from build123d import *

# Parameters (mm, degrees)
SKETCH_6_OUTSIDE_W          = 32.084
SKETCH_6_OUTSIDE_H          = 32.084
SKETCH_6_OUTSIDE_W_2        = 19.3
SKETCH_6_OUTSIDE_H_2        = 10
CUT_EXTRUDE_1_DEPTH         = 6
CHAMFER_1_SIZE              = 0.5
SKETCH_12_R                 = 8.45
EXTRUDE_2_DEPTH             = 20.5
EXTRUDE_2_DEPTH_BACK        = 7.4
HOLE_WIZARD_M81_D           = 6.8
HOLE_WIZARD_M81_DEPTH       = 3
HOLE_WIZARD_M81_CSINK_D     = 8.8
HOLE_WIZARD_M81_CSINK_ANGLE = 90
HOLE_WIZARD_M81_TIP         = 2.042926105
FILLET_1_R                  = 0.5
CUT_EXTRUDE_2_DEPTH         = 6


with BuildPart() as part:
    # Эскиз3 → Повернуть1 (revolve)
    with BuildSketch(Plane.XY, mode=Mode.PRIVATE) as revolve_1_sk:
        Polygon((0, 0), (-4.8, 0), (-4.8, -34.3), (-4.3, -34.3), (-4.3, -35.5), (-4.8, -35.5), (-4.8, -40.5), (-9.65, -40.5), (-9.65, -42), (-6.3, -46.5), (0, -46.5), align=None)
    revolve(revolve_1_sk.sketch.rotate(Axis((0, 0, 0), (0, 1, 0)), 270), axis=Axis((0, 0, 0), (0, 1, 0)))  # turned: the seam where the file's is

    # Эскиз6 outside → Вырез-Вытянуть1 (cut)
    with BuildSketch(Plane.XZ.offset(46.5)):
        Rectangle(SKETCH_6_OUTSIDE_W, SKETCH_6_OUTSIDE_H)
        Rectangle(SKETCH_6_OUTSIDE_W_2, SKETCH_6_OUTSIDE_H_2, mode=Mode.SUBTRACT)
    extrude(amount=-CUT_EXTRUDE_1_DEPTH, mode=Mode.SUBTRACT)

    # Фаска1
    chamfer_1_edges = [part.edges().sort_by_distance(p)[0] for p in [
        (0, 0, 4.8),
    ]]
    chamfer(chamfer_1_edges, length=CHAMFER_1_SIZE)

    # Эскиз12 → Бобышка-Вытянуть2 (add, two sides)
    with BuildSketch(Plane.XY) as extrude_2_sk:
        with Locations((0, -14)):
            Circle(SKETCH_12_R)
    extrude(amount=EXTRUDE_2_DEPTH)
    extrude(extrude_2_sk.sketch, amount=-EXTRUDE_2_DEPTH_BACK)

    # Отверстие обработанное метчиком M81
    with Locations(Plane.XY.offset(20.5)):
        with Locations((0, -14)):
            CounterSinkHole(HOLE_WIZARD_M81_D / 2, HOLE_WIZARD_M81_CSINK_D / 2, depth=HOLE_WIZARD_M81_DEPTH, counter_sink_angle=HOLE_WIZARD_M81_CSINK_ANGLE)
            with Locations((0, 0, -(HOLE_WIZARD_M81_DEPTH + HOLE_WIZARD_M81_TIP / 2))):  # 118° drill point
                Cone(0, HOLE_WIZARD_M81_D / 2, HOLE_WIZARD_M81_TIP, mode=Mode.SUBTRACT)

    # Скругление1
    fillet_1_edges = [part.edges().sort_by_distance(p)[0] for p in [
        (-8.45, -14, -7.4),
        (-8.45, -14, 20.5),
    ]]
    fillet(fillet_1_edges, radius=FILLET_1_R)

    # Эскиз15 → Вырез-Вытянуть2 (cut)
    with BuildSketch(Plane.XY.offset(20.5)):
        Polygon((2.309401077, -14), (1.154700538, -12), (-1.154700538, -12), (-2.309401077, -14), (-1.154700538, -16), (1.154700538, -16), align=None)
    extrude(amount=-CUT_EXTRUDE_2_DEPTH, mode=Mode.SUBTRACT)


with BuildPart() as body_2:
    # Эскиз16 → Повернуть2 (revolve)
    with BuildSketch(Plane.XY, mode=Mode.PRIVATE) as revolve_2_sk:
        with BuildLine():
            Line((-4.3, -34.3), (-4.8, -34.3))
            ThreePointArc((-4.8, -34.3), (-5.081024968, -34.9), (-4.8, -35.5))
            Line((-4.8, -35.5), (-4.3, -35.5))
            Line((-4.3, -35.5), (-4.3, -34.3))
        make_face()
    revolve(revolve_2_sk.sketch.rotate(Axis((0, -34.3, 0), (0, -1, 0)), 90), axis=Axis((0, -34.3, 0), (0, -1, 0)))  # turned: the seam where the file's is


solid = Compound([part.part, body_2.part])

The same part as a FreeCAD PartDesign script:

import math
import FreeCAD as App
import Part
import Sketcher
Q = App.Units.Quantity


def edges_at(feature, points):
    """Names of the edges that pass closest to the given points."""
    edges = feature.Shape.Edges
    near = lambda p: min(range(len(edges)), key=lambda i: edges[i].distToShape(Part.Vertex(*p))[0])
    return sorted({f"Edge{near(p) + 1}" for p in points})

doc = App.newDocument("Part")
body = doc.addObject("PartDesign::Body", "Body")

sketch1 = body.newObject("Sketcher::SketchObject", "Sketch")
sketch1.AttachmentSupport = (doc.getObject("XY_Plane"), [""])
sketch1.MapMode = "FlatFace"
sketch1.addGeometry(Part.LineSegment(App.Vector(0, 0, 0), App.Vector(-4.8, 0, 0)), False)
sketch1.addGeometry(Part.LineSegment(App.Vector(-4.8, 0, 0), App.Vector(-4.8, -34.3, 0)), False)
sketch1.addGeometry(Part.LineSegment(App.Vector(-4.8, -34.3, 0), App.Vector(-4.3, -34.3, 0)), False)
sketch1.addGeometry(Part.LineSegment(App.Vector(-4.3, -34.3, 0), App.Vector(-4.3, -35.5, 0)), False)
sketch1.addGeometry(Part.LineSegment(App.Vector(-4.3, -35.5, 0), App.Vector(-4.8, -35.5, 0)), False)
sketch1.addGeometry(Part.LineSegment(App.Vector(-4.8, -35.5, 0), App.Vector(-4.8, -40.5, 0)), False)
sketch1.addGeometry(Part.LineSegment(App.Vector(-4.8, -40.5, 0), App.Vector(-9.7, -40.5, 0)), False)
sketch1.addGeometry(Part.LineSegment(App.Vector(-9.7, -40.5, 0), App.Vector(-9.7, -42, 0)), False)
sketch1.addGeometry(Part.LineSegment(App.Vector(-9.7, -42, 0), App.Vector(-6.3, -46.5, 0)), False)
sketch1.addGeometry(Part.LineSegment(App.Vector(-6.3, -46.5, 0), App.Vector(0, -46.5, 0)), False)
sketch1.addGeometry(Part.LineSegment(App.Vector(0, -46.5, 0), App.Vector(0, 0, 0)), False)
sketch1.addConstraint(Sketcher.Constraint("Coincident", 0, 2, 1, 1))
sketch1.addConstraint(Sketcher.Constraint("Coincident", 1, 2, 2, 1))
sketch1.addConstraint(Sketcher.Constraint("Coincident", 2, 2, 3, 1))
sketch1.addConstraint(Sketcher.Constraint("Coincident", 3, 2, 4, 1))
sketch1.addConstraint(Sketcher.Constraint("Coincident", 4, 2, 5, 1))
sketch1.addConstraint(Sketcher.Constraint("Coincident", 5, 2, 6, 1))
sketch1.addConstraint(Sketcher.Constraint("Coincident", 6, 2, 7, 1))
sketch1.addConstraint(Sketcher.Constraint("Coincident", 7, 2, 8, 1))
sketch1.addConstraint(Sketcher.Constraint("Coincident", 8, 2, 9, 1))
sketch1.addConstraint(Sketcher.Constraint("Coincident", 9, 2, 10, 1))
sketch1.addConstraint(Sketcher.Constraint("Coincident", 10, 2, 0, 1))
sketch1.addConstraint(Sketcher.Constraint("Horizontal", 0))
sketch1.addConstraint(Sketcher.Constraint("Vertical", 1))
sketch1.addConstraint(Sketcher.Constraint("Horizontal", 2))
sketch1.addConstraint(Sketcher.Constraint("Vertical", 3))
sketch1.addConstraint(Sketcher.Constraint("Horizontal", 4))
sketch1.addConstraint(Sketcher.Constraint("Vertical", 5))
sketch1.addConstraint(Sketcher.Constraint("Horizontal", 6))
sketch1.addConstraint(Sketcher.Constraint("Vertical", 7))
sketch1.addConstraint(Sketcher.Constraint("Horizontal", 9))
sketch1.addConstraint(Sketcher.Constraint("Vertical", 10))
sketch1.addConstraint(Sketcher.Constraint("Coincident", 10, 2, -1, 1))
sketch1.addConstraint(Sketcher.Constraint("Vertical", 1, 2, 4, 2))
sketch1.addConstraint(Sketcher.Constraint("DistanceY", 5, 2, 5, 1, Q("5 mm")))
sketch1.addConstraint(Sketcher.Constraint("DistanceX", 0, 2, 0, 1, Q("4.8 mm")))
sketch1.addConstraint(Sketcher.Constraint("DistanceX", 2, 1, 2, 2, Q("0.5 mm")))
sketch1.addConstraint(Sketcher.Constraint("DistanceX", 9, 1, 9, 2, Q("6.3 mm")))
sketch1.addConstraint(Sketcher.Constraint("DistanceY", 1, 2, 1, 1, Q("34.3 mm")))
sketch1.addConstraint(Sketcher.Constraint("DistanceY", 3, 2, 3, 1, Q("1.2 mm")))
sketch1.addConstraint(Sketcher.Constraint("DistanceY", 7, 2, 7, 1, Q("1.5 mm")))
sketch1.addConstraint(Sketcher.Constraint("DistanceY", 10, 1, 10, 2, Q("46.5 mm")))
sketch1.addConstraint(Sketcher.Constraint("DistanceX", 6, 2, 6, 1, Q("4.85 mm")))
revolution = body.newObject("PartDesign::Revolution", "Revolution")
revolution.Profile = sketch1
revolution.ReferenceAxis = (sketch1, ["V_Axis"])
revolution.Angle = 360

sketch2 = body.newObject("Sketcher::SketchObject", "Sketch001")
sketch2.AttachmentSupport = (doc.getObject("XZ_Plane"), [""])
sketch2.MapMode = "FlatFace"
sketch2.AttachmentOffset = App.Placement(App.Vector(0, 0, 46.5), App.Rotation())
sketch2.addGeometry(Part.LineSegment(App.Vector(-16, 16, 0), App.Vector(-16, -16, 0)), False)
sketch2.addGeometry(Part.LineSegment(App.Vector(-16, -16, 0), App.Vector(16, -16, 0)), False)
sketch2.addGeometry(Part.LineSegment(App.Vector(16, -16, 0), App.Vector(16, 16, 0)), False)
sketch2.addGeometry(Part.LineSegment(App.Vector(16, 16, 0), App.Vector(-16, 16, 0)), False)
sketch2.addGeometry(Part.LineSegment(App.Vector(10, -5, 0), App.Vector(-10, -5, 0)), False)
sketch2.addGeometry(Part.LineSegment(App.Vector(-10, -5, 0), App.Vector(-10, 5, 0)), False)
sketch2.addGeometry(Part.LineSegment(App.Vector(-10, 5, 0), App.Vector(10, 5, 0)), False)
sketch2.addGeometry(Part.LineSegment(App.Vector(10, 5, 0), App.Vector(10, -5, 0)), False)
sketch2.addConstraint(Sketcher.Constraint("Coincident", 0, 2, 1, 1))
sketch2.addConstraint(Sketcher.Constraint("Coincident", 1, 2, 2, 1))
sketch2.addConstraint(Sketcher.Constraint("Coincident", 2, 2, 3, 1))
sketch2.addConstraint(Sketcher.Constraint("Coincident", 3, 2, 0, 1))
sketch2.addConstraint(Sketcher.Constraint("Coincident", 4, 2, 5, 1))
sketch2.addConstraint(Sketcher.Constraint("Coincident", 5, 2, 6, 1))
sketch2.addConstraint(Sketcher.Constraint("Coincident", 6, 2, 7, 1))
sketch2.addConstraint(Sketcher.Constraint("Coincident", 7, 2, 4, 1))
sketch2.addConstraint(Sketcher.Constraint("Vertical", 0))
sketch2.addConstraint(Sketcher.Constraint("Horizontal", 1))
sketch2.addConstraint(Sketcher.Constraint("Vertical", 2))
sketch2.addConstraint(Sketcher.Constraint("Horizontal", 3))
sketch2.addConstraint(Sketcher.Constraint("Horizontal", 4))
sketch2.addConstraint(Sketcher.Constraint("Vertical", 5))
sketch2.addConstraint(Sketcher.Constraint("Horizontal", 6))
sketch2.addConstraint(Sketcher.Constraint("Vertical", 7))
sketch2.addConstraint(Sketcher.Constraint("Symmetric", 0, 2, 2, 2, -1, 1))
sketch2.addConstraint(Sketcher.Constraint("Symmetric", 4, 2, 6, 2, -1, 1))
sketch2.addConstraint(Sketcher.Constraint("Equal", 3, 0))
sketch2.addConstraint(Sketcher.Constraint("DistanceY", 5, 1, 5, 2, Q("10 mm")))
sketch2.addConstraint(Sketcher.Constraint("DistanceX", 4, 2, 4, 1, Q("19.3 mm")))
sketch2.addConstraint(Sketcher.Constraint("DistanceX", 1, 1, 1, 2, Q("32.084 mm")))
pocket1 = body.newObject("PartDesign::Pocket", "Pocket")
pocket1.Profile = sketch2
pocket1.Length = 6
doc.recompute()

chamfer = body.newObject("PartDesign::Chamfer", "Chamfer")
chamfer.Base = (pocket1, edges_at(pocket1, [(0, 0, 4.8)]))
chamfer.Size = 0.5

sketch3 = body.newObject("Sketcher::SketchObject", "Sketch002")
sketch3.AttachmentSupport = (doc.getObject("XY_Plane"), [""])
sketch3.MapMode = "FlatFace"
sketch3.addGeometry(Part.Circle(App.Vector(0, -14, 0), App.Vector(0, 0, 1), 8), False)
sketch3.addConstraint(Sketcher.Constraint("PointOnObject", 0, 3, -2))
sketch3.addConstraint(Sketcher.Constraint("Diameter", 0, Q("16.9 mm")))
sketch3.addConstraint(Sketcher.Constraint("DistanceY", 0, 3, -1, 1, Q("14 mm")))
pad1 = body.newObject("PartDesign::Pad", "Pad")
pad1.Profile = sketch3
pad1.Type = "TwoLengths"
pad1.Length = 20.5
pad1.Length2 = 7.4

sketch4 = body.newObject("Sketcher::SketchObject", "Sketch003")
sketch4.AttachmentSupport = (doc.getObject("XY_Plane"), [""])
sketch4.MapMode = "FlatFace"
sketch4.AttachmentOffset = App.Placement(App.Vector(0, 0, 20.5), App.Rotation())
sketch4.addGeometry(Part.Circle(App.Vector(0, -14, 0), App.Vector(0, 0, 1), 3.4), False)
sketch4.addConstraint(Sketcher.Constraint("PointOnObject", 0, 3, -2))
sketch4.addConstraint(Sketcher.Constraint("Diameter", 0, Q("6.8 mm")))
sketch4.addConstraint(Sketcher.Constraint("DistanceY", 0, 3, -1, 1, Q("14 mm")))
doc.recompute()
hole = body.newObject("PartDesign::Hole", "Hole")
hole.Profile = sketch4
hole.ThreadType = "None"
hole.Diameter = 6.8
hole.DepthType = "Dimension"
hole.Depth = 3
hole.DrillPoint = "Angled"
hole.DrillPointAngle = 118
hole.HoleCutType = "Countersink"
hole.HoleCutDiameter = 8.8
hole.HoleCutCountersinkAngle = 90
doc.recompute()

fillet = body.newObject("PartDesign::Fillet", "Fillet")
fillet.Base = (hole, edges_at(hole, [(-8.45, -14, -7.4), (-8.45, -14, 20.5)]))
fillet.Radius = 0.5

sketch5 = body.newObject("Sketcher::SketchObject", "Sketch004")
sketch5.AttachmentSupport = (doc.getObject("XY_Plane"), [""])
sketch5.MapMode = "FlatFace"
sketch5.AttachmentOffset = App.Placement(App.Vector(0, 0, 20.5), App.Rotation())
sketch5.addGeometry(Part.LineSegment(App.Vector(2.3, -14, 0), App.Vector(1.2, -12, 0)), False)
sketch5.addGeometry(Part.LineSegment(App.Vector(1.2, -12, 0), App.Vector(-1.2, -12, 0)), False)
sketch5.addGeometry(Part.LineSegment(App.Vector(-1.2, -12, 0), App.Vector(-2.3, -14, 0)), False)
sketch5.addGeometry(Part.LineSegment(App.Vector(-2.3, -14, 0), App.Vector(-1.2, -16, 0)), False)
sketch5.addGeometry(Part.LineSegment(App.Vector(-1.2, -16, 0), App.Vector(1.2, -16, 0)), False)
sketch5.addGeometry(Part.LineSegment(App.Vector(1.2, -16, 0), App.Vector(2.3, -14, 0)), False)
sketch5.addConstraint(Sketcher.Constraint("Coincident", 0, 2, 1, 1))
sketch5.addConstraint(Sketcher.Constraint("Coincident", 1, 2, 2, 1))
sketch5.addConstraint(Sketcher.Constraint("Coincident", 2, 2, 3, 1))
sketch5.addConstraint(Sketcher.Constraint("Coincident", 3, 2, 4, 1))
sketch5.addConstraint(Sketcher.Constraint("Coincident", 4, 2, 5, 1))
sketch5.addConstraint(Sketcher.Constraint("Coincident", 5, 2, 0, 1))
sketch5.addConstraint(Sketcher.Constraint("Horizontal", 1))
sketch5.addConstraint(Sketcher.Constraint("Horizontal", 4))
sketch5.addConstraint(Sketcher.Constraint("Symmetric", 2, 2, 5, 2, -2))
sketch5.addConstraint(Sketcher.Constraint("Parallel", 0, 3))
sketch5.addConstraint(Sketcher.Constraint("Parallel", 2, 5))
sketch5.addConstraint(Sketcher.Constraint("Vertical", 1, 2, 3, 2))
sketch5.addConstraint(Sketcher.Constraint("Vertical", 0, 2, 4, 2))
sketch5.addConstraint(Sketcher.Constraint("Angle", 0, Q("120 deg")))
sketch5.addConstraint(Sketcher.Constraint("DistanceY", 0, 2, -1, 1, Q("12 mm")))
sketch5.addConstraint(Sketcher.Constraint("DistanceY", 2, 2, -1, 1, Q("14 mm")))
sketch5.addConstraint(Sketcher.Constraint("DistanceX", 1, 2, 1, 1, Q("2.309401 mm")))
pocket2 = body.newObject("PartDesign::Pocket", "Pocket001")
pocket2.Profile = sketch5
pocket2.Length = 6
body2 = doc.addObject("PartDesign::Body", "Body001")

sketch6 = body2.newObject("Sketcher::SketchObject", "Sketch005")
sketch6.AttachmentSupport = (doc.getObject("XY_Plane001"), [""])
sketch6.MapMode = "FlatFace"
sketch6.addGeometry(Part.LineSegment(App.Vector(-4.3, -34.3, 0), App.Vector(-4.8, -34.3, 0)), False)
sketch6.addGeometry(Part.ArcOfCircle(Part.Circle(App.Vector(-4.3, -34.9, 0), App.Vector(0, 0, 1), 0.8), math.radians(130), math.radians(230)), False)
sketch6.addGeometry(Part.LineSegment(App.Vector(-4.8, -35.5, 0), App.Vector(-4.3, -35.5, 0)), False)
sketch6.addGeometry(Part.LineSegment(App.Vector(-4.3, -35.5, 0), App.Vector(-4.3, -34.3, 0)), False)
sketch6.addConstraint(Sketcher.Constraint("Coincident", 0, 2, 1, 1))
sketch6.addConstraint(Sketcher.Constraint("Coincident", 1, 2, 2, 1))
sketch6.addConstraint(Sketcher.Constraint("Coincident", 2, 2, 3, 1))
sketch6.addConstraint(Sketcher.Constraint("Coincident", 3, 2, 0, 1))
sketch6.addConstraint(Sketcher.Constraint("Horizontal", 0))
sketch6.addConstraint(Sketcher.Constraint("Horizontal", 2))
sketch6.addConstraint(Sketcher.Constraint("Vertical", 3))
sketch6.addConstraint(Sketcher.Constraint("Vertical", 0, 2, 1, 2))
sketch6.addConstraint(Sketcher.Constraint("Vertical", 1, 3, 2, 2))
sketch6.addConstraint(Sketcher.Constraint("DistanceX", 0, 2, 0, 1, Q("0.5 mm")))
sketch6.addConstraint(Sketcher.Constraint("DistanceY", 3, 1, 3, 2, Q("1.2 mm")))
sketch6.addConstraint(Sketcher.Constraint("DistanceX", 1, 3, -1, 1, Q("4.3 mm")))
sketch6.addConstraint(Sketcher.Constraint("DistanceY", 1, 3, -1, 1, Q("34.9 mm")))
revolution2 = body2.newObject("PartDesign::Revolution", "Revolution001")
revolution2.Profile = sketch6
revolution2.ReferenceAxis = (sketch6, ["V_Axis"])
revolution2.Angle = 360

doc.recompute()
